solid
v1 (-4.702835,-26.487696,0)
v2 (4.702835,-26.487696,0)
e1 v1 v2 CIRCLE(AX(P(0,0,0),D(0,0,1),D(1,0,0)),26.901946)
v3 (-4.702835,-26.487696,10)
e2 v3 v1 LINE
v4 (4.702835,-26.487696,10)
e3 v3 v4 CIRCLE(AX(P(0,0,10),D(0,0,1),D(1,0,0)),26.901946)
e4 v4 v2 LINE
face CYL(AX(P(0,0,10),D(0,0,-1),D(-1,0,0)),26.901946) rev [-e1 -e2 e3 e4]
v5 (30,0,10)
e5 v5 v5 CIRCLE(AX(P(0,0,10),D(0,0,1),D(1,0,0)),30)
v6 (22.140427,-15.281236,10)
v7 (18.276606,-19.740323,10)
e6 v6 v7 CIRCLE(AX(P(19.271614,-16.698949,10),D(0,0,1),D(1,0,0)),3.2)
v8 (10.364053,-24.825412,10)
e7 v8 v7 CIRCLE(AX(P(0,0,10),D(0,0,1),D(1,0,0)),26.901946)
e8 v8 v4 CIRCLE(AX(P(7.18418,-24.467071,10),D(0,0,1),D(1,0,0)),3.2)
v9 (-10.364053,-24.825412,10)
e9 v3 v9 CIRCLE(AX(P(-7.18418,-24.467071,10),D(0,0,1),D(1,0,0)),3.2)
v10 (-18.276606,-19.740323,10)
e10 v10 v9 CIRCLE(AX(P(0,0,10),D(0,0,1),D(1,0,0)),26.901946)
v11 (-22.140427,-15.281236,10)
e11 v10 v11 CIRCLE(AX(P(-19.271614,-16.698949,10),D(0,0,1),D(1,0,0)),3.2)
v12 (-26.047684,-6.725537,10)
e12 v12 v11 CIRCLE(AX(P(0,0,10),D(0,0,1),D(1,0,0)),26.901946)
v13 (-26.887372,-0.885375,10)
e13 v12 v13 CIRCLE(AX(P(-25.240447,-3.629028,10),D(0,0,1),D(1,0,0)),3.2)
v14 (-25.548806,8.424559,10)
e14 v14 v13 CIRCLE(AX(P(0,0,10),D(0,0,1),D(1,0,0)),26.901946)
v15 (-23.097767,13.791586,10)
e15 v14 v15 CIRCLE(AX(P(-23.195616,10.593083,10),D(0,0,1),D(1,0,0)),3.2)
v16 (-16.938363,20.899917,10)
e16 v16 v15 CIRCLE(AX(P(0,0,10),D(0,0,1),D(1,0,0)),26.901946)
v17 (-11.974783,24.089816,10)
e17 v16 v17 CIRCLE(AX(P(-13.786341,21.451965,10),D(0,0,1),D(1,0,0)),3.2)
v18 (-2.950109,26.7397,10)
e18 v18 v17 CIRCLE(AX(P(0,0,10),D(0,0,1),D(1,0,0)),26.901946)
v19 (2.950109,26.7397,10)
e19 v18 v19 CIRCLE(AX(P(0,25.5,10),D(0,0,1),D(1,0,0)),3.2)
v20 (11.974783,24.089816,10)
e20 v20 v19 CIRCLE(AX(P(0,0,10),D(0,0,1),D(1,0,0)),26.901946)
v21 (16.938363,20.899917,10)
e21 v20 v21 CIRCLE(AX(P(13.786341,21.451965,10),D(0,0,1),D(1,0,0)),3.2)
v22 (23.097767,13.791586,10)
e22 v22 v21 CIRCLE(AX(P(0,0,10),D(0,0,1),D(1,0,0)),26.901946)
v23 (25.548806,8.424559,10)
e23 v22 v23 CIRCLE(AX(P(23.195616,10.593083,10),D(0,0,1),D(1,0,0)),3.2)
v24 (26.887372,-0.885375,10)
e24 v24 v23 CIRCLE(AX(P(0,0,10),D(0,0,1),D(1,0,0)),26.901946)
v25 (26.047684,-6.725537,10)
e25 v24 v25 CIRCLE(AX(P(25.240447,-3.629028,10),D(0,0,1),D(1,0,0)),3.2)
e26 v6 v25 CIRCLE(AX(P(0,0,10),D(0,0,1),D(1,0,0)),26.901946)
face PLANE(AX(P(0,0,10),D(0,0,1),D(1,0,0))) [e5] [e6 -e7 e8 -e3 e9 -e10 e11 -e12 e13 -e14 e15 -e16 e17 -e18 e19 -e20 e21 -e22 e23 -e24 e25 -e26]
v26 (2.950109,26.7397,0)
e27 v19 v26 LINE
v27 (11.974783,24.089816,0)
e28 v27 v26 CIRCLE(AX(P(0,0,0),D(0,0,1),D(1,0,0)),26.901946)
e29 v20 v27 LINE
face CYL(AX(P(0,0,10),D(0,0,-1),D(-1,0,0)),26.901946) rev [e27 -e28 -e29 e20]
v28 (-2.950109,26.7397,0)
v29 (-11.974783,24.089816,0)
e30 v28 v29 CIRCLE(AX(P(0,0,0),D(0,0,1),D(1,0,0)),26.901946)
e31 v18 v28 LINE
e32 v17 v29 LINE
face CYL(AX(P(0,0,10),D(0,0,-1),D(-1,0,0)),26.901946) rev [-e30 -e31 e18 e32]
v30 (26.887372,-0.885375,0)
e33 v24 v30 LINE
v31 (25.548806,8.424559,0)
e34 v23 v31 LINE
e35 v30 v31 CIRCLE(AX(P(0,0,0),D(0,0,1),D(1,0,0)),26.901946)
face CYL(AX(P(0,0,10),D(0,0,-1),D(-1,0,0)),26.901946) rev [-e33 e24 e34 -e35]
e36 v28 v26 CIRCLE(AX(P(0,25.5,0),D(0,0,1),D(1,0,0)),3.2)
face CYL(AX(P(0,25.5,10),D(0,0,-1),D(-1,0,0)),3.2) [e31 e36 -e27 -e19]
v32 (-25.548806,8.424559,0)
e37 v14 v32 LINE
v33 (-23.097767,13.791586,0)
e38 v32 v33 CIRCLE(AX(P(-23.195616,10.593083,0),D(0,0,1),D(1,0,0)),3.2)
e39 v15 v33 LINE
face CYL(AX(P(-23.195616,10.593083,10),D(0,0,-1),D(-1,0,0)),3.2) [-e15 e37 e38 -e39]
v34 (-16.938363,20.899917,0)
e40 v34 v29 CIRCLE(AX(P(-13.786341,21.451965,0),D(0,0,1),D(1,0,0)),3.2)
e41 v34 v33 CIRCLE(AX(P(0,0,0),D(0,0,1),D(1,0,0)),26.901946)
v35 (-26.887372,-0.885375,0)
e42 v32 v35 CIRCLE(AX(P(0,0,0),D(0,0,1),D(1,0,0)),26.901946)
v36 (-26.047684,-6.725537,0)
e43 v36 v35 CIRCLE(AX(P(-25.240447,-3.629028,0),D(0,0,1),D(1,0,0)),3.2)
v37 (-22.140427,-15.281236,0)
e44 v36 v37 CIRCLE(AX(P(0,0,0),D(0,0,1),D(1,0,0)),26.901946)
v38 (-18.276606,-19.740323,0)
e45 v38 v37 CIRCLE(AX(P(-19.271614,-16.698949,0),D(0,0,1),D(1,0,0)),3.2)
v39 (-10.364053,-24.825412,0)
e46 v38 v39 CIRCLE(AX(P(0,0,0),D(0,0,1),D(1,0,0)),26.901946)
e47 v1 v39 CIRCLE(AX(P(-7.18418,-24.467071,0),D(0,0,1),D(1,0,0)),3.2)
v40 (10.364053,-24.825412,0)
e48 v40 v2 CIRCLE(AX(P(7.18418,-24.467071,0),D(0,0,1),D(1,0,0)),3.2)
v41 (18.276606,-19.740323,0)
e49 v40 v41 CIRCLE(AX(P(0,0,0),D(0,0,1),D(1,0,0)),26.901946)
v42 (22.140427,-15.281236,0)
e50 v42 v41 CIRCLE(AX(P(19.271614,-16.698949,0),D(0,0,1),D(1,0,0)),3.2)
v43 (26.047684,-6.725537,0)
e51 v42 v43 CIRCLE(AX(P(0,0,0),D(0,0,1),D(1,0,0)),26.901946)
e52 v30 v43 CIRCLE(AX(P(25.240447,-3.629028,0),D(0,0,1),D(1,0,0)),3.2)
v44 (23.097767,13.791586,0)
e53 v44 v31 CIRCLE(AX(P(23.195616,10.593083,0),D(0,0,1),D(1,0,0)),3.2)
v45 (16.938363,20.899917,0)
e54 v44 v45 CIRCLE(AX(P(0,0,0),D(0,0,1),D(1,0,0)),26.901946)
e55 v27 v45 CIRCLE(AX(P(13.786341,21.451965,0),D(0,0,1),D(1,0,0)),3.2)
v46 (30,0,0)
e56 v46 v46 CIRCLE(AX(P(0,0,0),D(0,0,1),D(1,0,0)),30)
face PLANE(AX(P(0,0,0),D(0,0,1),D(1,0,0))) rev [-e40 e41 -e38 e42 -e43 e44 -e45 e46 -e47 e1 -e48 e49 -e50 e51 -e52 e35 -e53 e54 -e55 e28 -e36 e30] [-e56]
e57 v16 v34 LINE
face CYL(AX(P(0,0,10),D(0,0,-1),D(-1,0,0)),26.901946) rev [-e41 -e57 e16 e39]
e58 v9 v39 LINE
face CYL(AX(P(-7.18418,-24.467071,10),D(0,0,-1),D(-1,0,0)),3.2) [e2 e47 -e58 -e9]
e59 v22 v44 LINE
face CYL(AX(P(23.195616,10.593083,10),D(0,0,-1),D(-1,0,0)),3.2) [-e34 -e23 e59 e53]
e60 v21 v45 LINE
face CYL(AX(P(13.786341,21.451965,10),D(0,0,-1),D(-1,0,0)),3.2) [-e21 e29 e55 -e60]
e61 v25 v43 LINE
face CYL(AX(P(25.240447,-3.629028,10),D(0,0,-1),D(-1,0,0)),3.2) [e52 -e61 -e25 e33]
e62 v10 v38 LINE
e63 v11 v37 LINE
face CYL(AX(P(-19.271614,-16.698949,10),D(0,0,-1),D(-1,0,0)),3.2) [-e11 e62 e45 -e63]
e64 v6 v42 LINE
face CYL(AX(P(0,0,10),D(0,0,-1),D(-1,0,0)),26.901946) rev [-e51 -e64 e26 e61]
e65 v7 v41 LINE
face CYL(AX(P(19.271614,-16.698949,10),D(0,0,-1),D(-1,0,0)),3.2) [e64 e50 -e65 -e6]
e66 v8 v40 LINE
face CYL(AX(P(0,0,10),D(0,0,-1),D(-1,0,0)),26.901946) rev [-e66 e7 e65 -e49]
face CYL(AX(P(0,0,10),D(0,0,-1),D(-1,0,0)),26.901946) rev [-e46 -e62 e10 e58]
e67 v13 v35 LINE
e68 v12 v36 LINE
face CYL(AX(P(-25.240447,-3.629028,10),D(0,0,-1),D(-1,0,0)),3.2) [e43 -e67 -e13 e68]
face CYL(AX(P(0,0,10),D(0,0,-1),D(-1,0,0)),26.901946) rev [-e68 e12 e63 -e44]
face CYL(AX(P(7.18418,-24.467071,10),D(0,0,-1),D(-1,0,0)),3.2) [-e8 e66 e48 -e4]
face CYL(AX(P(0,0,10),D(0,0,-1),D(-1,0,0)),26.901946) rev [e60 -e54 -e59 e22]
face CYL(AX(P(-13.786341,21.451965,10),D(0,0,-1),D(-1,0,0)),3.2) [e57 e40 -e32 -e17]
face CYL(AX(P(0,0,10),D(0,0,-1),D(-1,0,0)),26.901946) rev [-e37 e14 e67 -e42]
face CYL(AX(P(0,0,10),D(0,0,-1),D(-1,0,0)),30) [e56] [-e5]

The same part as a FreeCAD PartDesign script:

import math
import FreeCAD as App
import Part
import Sketcher
from FreeCAD import Vector
Q = App.Units.Quantity

doc = App.newDocument("Part")
params = doc.addObject("Spreadsheet::Sheet", "Params")
for row, (alias, value) in enumerate([
    ("sketch1_diameter", "60 mm"),
    ("sketch1_radius", "3.2 mm"),
    ("pad1_length", "10 mm"),
], start=1):
    params.set(f"A{row}", alias)
    params.set(f"B{row}", "=" + value)
    params.setAlias(f"B{row}", alias)

body = doc.addObject("PartDesign::Body", "Body")

# Sketch on XY plane
sketch1 = doc.addObject("Sketcher::SketchObject", "Sketch")
body.addObject(sketch1)
sketch1.AttachmentSupport = (doc.XY_Plane, [""])
sketch1.MapMode = "FlatFace"
sketch1.addGeometry(Part.Circle(Vector(0, 0, 0), Vector(0, 0, 1), 30), False)
sketch1.addGeometry(Part.ArcOfCircle(Part.Circle(Vector(0, 0, 0), Vector(0, 0, 1), 26.9), math.radians(31), math.radians(51)), False)
sketch1.addGeometry(Part.ArcOfCircle(Part.Circle(Vector(23.2, 10.6, 0), Vector(0, 0, 1), 3.2), math.radians(92), math.radians(317)), False)
sketch1.addGeometry(Part.ArcOfCircle(Part.Circle(Vector(0, 0, 0), Vector(0, 0, 1), 26.9), math.radians(-2), math.radians(18)), False)
sketch1.addGeometry(Part.ArcOfCircle(Part.Circle(Vector(25.2, -3.6, 0), Vector(0, 0, 1), 3.2), math.radians(59), math.radians(285)), False)
sketch1.addGeometry(Part.ArcOfCircle(Part.Circle(Vector(0, 0, 0), Vector(0, 0, 1), 26.9), math.radians(-35), math.radians(-14)), False)
sketch1.addGeometry(Part.ArcOfCircle(Part.Circle(Vector(19.3, -16.7, 0), Vector(0, 0, 1), 3.2), math.radians(26), math.radians(252)), False)
sketch1.addGeometry(Part.ArcOfCircle(Part.Circle(Vector(0, 0, 0), Vector(0, 0, 1), 26.9), math.radians(-67), math.radians(-47)), False)
sketch1.addGeometry(Part.ArcOfCircle(Part.Circle(Vector(7.2, -24.5, 0), Vector(0, 0, 1), 3.2), math.radians(-6), math.radians(219)), False)
sketch1.addGeometry(Part.ArcOfCircle(Part.Circle(Vector(0, 0, 0), Vector(0, 0, 1), 26.9), math.radians(-100), math.radians(-80)), False)
sketch1.addGeometry(Part.ArcOfCircle(Part.Circle(Vector(-7.2, -24.5, 0), Vector(0, 0, 1), 3.2), math.radians(-39), math.radians(186)), False)
sketch1.addGeometry(Part.ArcOfCircle(Part.Circle(Vector(0, 0, 0), Vector(0, 0, 1), 26.9), math.radians(-133), math.radians(-113)), False)
sketch1.addGeometry(Part.ArcOfCircle(Part.Circle(Vector(-19.3, -16.7, 0), Vector(0, 0, 1), 3.2), math.radians(-72), math.radians(154)), False)
sketch1.addGeometry(Part.ArcOfCircle(Part.Circle(Vector(0, 0, 0), Vector(0, 0, 1), 26.9), math.radians(-166), math.radians(-145)), False)
sketch1.addGeometry(Part.ArcOfCircle(Part.Circle(Vector(-25.2, -3.6, 0), Vector(0, 0, 1), 3.2), math.radians(-105), math.radians(121)), False)
sketch1.addGeometry(Part.ArcOfCircle(Part.Circle(Vector(0, 0, 0), Vector(0, 0, 1), 26.9), math.radians(162), math.radians(182)), False)
sketch1.addGeometry(Part.ArcOfCircle(Part.Circle(Vector(-23.2, 10.6, 0), Vector(0, 0, 1), 3.2), math.radians(-137), math.radians(88)), False)
sketch1.addGeometry(Part.ArcOfCircle(Part.Circle(Vector(0, 0, 0), Vector(0, 0, 1), 26.9), math.radians(129), math.radians(149)), False)
sketch1.addGeometry(Part.ArcOfCircle(Part.Circle(Vector(-13.8, 21.5, 0), Vector(0, 0, 1), 3.2), math.radians(-170), math.radians(56)), False)
sketch1.addGeometry(Part.ArcOfCircle(Part.Circle(Vector(0, 0, 0), Vector(0, 0, 1), 26.9), math.radians(96), math.radians(116)), False)
sketch1.addGeometry(Part.ArcOfCircle(Part.Circle(Vector(0, 25.5, 0), Vector(0, 0, 1), 3.2), math.radians(157), math.radians(383)), False)
sketch1.addGeometry(Part.ArcOfCircle(Part.Circle(Vector(0, 0, 0), Vector(0, 0, 1), 26.9), math.radians(64), math.radians(84)), False)
sketch1.addGeometry(Part.ArcOfCircle(Part.Circle(Vector(13.8, 21.5, 0), Vector(0, 0, 1), 3.2), math.radians(124), math.radians(350)), False)
sketch1.addConstraint(Sketcher.Constraint("Coincident", 1, 1, 2, 1))
sketch1.addConstraint(Sketcher.Constraint("Coincident", 2, 2, 3, 2))
sketch1.addConstraint(Sketcher.Constraint("Coincident", 3, 1, 4, 1))
sketch1.addConstraint(Sketcher.Constraint("Coincident", 4, 2, 5, 2))
sketch1.addConstraint(Sketcher.Constraint("Coincident", 5, 1, 6, 1))
sketch1.addConstraint(Sketcher.Constraint("Coincident", 6, 2, 7, 2))
sketch1.addConstraint(Sketcher.Constraint("Coincident", 7, 1, 8, 1))
sketch1.addConstraint(Sketcher.Constraint("Coincident", 8, 2, 9, 2))
sketch1.addConstraint(Sketcher.Constraint("Coincident", 9, 1, 10, 1))
sketch1.addConstraint(Sketcher.Constraint("Coincident", 10, 2, 11, 2))
sketch1.addConstraint(Sketcher.Constraint("Coincident", 11, 1, 12, 1))
sketch1.addConstraint(Sketcher.Constraint("Coincident", 12, 2, 13, 2))
sketch1.addConstraint(Sketcher.Constraint("Coincident", 13, 1, 14, 1))
sketch1.addConstraint(Sketcher.Constraint("Coincident", 14, 2, 15, 2))
sketch1.addConstraint(Sketcher.Constraint("Coincident", 15, 1, 16, 1))
sketch1.addConstraint(Sketcher.Constraint("Coincident", 16, 2, 17, 2))
sketch1.addConstraint(Sketcher.Constraint("Coincident", 17, 1, 18, 1))
sketch1.addConstraint(Sketcher.Constraint("Coincident", 18, 2, 19, 2))
sketch1.addConstraint(Sketcher.Constraint("Coincident", 19, 1, 20, 1))
sketch1.addConstraint(Sketcher.Constraint("Coincident", 20, 2, 21, 2))
sketch1.addConstraint(Sketcher.Constraint("Coincident", 21, 1, 22, 1))
sketch1.addConstraint(Sketcher.Constraint("Coincident", 22, 2, 1, 2))
sketch1.addConstraint(Sketcher.Constraint("Coincident", 0, 3, -1, 1))
sketch1.addConstraint(Sketcher.Constraint("Coincident", 1, 3, -1, 1))
sketch1.addConstraint(Sketcher.Constraint("Coincident", 3, 3, -1, 1))
sketch1.addConstraint(Sketcher.Constraint("Coincident", 5, 3, -1, 1))
sketch1.addConstraint(Sketcher.Constraint("Coincident", 7, 3, -1, 1))
sketch1.addConstraint(Sketcher.Constraint("Coincident", 9, 3, -1, 1))
sketch1.addConstraint(Sketcher.Constraint("Coincident", 11, 3, -1, 1))
sketch1.addConstraint(Sketcher.Constraint("Coincident", 13, 3, -1, 1))
sketch1.addConstraint(Sketcher.Constraint("Coincident", 15, 3, -1, 1))
sketch1.addConstraint(Sketcher.Constraint("Coincident", 17, 3, -1, 1))
sketch1.addConstraint(Sketcher.Constraint("Coincident", 19, 3, -1, 1))
sketch1.addConstraint(Sketcher.Constraint("Coincident", 21, 3, -1, 1))
sketch1.addConstraint(Sketcher.Constraint("Equal", 1, 3))
sketch1.addConstraint(Sketcher.Constraint("Equal", 2, 4))
sketch1.addConstraint(Sketcher.Constraint("Equal", 3, 5))
sketch1.addConstraint(Sketcher.Constraint("Equal", 4, 6))
sketch1.addConstraint(Sketcher.Constraint("Equal", 5, 7))
sketch1.addConstraint(Sketcher.Constraint("Equal", 6, 8))
sketch1.addConstraint(Sketcher.Constraint("Equal", 7, 9))
sketch1.addConstraint(Sketcher.Constraint("Equal", 8, 10))
sketch1.addConstraint(Sketcher.Constraint("Equal", 9, 11))
sketch1.addConstraint(Sketcher.Constraint("Equal", 10, 12))
sketch1.addConstraint(Sketcher.Constraint("Equal", 11, 13))
sketch1.addConstraint(Sketcher.Constraint("Equal", 12, 14))
sketch1.addConstraint(Sketcher.Constraint("Equal", 13, 15))
sketch1.addConstraint(Sketcher.Constraint("Equal", 14, 16))
sketch1.addConstraint(Sketcher.Constraint("Equal", 15, 17))
sketch1.addConstraint(Sketcher.Constraint("Equal", 16, 18))
sketch1.addConstraint(Sketcher.Constraint("Equal", 17, 19))
sketch1.addConstraint(Sketcher.Constraint("Equal", 18, 20))
sketch1.addConstraint(Sketcher.Constraint("Equal", 19, 21))
sketch1.addConstraint(Sketcher.Constraint("Equal", 20, 22))
sketch1.addConstraint(Sketcher.Constraint("Symmetric", 8, 3, 10, 3, -2))
sketch1.addConstraint(Sketcher.Constraint("Symmetric", 6, 3, 12, 3, -2))
sketch1.addConstraint(Sketcher.Constraint("Symmetric", 4, 3, 14, 3, -2))
sketch1.addConstraint(Sketcher.Constraint("Symmetric", 2, 3, 16, 3, -2))
sketch1.addConstraint(Sketcher.Constraint("Symmetric", 18, 3, 22, 3, -2))
sketch1.addConstraint(Sketcher.Constraint("PointOnObject", 20, 3, -2))
sketch1.addConstraint(Sketcher.Constraint("Diameter", 0, Q("60 mm")))
sketch1.addConstraint(Sketcher.Constraint("Radius", 2, Q("3.2 mm")))
sketch1.addConstraint(Sketcher.Constraint("DistanceY", -1, 1, 20, 3, Q("25.5 mm")))
sketch1.addConstraint(Sketcher.Constraint("Radius", 1, Q("26.901946 mm")))
sketch1.addConstraint(Sketcher.Constraint("DistanceY", 5, 1, 4, 2, Q("8.555698 mm")))
sketch1.addConstraint(Sketcher.Constraint("DistanceY", 17, 1, 18, 2, Q("3.189899 mm")))
sketch1.addConstraint(Sketcher.Constraint("DistanceY", 4, 3, -1, 1, Q("3.629028 mm")))
sketch1.addConstraint(Sketcher.Constraint("DistanceY", 6, 3, -1, 1, Q("16.698949 mm")))
sketch1.addConstraint(Sketcher.Constraint("DistanceX", -1, 1, 8, 3, Q("7.18418 mm")))
sketch1.addConstraint(Sketcher.Constraint("DistanceY", 8, 3, -1, 1, Q("24.467071 mm")))
sketch1.addConstraint(Sketcher.Constraint("DistanceX", 18, 3, -1, 1, Q("13.786341 mm")))
sketch1.addConstraint(Sketcher.Constraint("DistanceY", -1, 1, 2, 2, Q("8.424559 mm")))
sketch1.addConstraint(Sketcher.Constraint("DistanceX", 2, 3, 4, 3, Q("2.044831 mm")))
sketch1.addConstraint(Sketcher.Constraint("DistanceY", 4, 3, 2, 3, Q("14.222111 mm")))
sketch1.setExpression("Constraints[60]", "Params.sketch1_diameter")
sketch1.setExpression("Constraints[61]", "Params.sketch1_radius")
pad1 = doc.addObject("PartDesign::Pad", "Pad")
body.addObject(pad1)
pad1.Profile = sketch1
pad1.setExpression("Length", "Params.pad1_length")

doc.recompute()
